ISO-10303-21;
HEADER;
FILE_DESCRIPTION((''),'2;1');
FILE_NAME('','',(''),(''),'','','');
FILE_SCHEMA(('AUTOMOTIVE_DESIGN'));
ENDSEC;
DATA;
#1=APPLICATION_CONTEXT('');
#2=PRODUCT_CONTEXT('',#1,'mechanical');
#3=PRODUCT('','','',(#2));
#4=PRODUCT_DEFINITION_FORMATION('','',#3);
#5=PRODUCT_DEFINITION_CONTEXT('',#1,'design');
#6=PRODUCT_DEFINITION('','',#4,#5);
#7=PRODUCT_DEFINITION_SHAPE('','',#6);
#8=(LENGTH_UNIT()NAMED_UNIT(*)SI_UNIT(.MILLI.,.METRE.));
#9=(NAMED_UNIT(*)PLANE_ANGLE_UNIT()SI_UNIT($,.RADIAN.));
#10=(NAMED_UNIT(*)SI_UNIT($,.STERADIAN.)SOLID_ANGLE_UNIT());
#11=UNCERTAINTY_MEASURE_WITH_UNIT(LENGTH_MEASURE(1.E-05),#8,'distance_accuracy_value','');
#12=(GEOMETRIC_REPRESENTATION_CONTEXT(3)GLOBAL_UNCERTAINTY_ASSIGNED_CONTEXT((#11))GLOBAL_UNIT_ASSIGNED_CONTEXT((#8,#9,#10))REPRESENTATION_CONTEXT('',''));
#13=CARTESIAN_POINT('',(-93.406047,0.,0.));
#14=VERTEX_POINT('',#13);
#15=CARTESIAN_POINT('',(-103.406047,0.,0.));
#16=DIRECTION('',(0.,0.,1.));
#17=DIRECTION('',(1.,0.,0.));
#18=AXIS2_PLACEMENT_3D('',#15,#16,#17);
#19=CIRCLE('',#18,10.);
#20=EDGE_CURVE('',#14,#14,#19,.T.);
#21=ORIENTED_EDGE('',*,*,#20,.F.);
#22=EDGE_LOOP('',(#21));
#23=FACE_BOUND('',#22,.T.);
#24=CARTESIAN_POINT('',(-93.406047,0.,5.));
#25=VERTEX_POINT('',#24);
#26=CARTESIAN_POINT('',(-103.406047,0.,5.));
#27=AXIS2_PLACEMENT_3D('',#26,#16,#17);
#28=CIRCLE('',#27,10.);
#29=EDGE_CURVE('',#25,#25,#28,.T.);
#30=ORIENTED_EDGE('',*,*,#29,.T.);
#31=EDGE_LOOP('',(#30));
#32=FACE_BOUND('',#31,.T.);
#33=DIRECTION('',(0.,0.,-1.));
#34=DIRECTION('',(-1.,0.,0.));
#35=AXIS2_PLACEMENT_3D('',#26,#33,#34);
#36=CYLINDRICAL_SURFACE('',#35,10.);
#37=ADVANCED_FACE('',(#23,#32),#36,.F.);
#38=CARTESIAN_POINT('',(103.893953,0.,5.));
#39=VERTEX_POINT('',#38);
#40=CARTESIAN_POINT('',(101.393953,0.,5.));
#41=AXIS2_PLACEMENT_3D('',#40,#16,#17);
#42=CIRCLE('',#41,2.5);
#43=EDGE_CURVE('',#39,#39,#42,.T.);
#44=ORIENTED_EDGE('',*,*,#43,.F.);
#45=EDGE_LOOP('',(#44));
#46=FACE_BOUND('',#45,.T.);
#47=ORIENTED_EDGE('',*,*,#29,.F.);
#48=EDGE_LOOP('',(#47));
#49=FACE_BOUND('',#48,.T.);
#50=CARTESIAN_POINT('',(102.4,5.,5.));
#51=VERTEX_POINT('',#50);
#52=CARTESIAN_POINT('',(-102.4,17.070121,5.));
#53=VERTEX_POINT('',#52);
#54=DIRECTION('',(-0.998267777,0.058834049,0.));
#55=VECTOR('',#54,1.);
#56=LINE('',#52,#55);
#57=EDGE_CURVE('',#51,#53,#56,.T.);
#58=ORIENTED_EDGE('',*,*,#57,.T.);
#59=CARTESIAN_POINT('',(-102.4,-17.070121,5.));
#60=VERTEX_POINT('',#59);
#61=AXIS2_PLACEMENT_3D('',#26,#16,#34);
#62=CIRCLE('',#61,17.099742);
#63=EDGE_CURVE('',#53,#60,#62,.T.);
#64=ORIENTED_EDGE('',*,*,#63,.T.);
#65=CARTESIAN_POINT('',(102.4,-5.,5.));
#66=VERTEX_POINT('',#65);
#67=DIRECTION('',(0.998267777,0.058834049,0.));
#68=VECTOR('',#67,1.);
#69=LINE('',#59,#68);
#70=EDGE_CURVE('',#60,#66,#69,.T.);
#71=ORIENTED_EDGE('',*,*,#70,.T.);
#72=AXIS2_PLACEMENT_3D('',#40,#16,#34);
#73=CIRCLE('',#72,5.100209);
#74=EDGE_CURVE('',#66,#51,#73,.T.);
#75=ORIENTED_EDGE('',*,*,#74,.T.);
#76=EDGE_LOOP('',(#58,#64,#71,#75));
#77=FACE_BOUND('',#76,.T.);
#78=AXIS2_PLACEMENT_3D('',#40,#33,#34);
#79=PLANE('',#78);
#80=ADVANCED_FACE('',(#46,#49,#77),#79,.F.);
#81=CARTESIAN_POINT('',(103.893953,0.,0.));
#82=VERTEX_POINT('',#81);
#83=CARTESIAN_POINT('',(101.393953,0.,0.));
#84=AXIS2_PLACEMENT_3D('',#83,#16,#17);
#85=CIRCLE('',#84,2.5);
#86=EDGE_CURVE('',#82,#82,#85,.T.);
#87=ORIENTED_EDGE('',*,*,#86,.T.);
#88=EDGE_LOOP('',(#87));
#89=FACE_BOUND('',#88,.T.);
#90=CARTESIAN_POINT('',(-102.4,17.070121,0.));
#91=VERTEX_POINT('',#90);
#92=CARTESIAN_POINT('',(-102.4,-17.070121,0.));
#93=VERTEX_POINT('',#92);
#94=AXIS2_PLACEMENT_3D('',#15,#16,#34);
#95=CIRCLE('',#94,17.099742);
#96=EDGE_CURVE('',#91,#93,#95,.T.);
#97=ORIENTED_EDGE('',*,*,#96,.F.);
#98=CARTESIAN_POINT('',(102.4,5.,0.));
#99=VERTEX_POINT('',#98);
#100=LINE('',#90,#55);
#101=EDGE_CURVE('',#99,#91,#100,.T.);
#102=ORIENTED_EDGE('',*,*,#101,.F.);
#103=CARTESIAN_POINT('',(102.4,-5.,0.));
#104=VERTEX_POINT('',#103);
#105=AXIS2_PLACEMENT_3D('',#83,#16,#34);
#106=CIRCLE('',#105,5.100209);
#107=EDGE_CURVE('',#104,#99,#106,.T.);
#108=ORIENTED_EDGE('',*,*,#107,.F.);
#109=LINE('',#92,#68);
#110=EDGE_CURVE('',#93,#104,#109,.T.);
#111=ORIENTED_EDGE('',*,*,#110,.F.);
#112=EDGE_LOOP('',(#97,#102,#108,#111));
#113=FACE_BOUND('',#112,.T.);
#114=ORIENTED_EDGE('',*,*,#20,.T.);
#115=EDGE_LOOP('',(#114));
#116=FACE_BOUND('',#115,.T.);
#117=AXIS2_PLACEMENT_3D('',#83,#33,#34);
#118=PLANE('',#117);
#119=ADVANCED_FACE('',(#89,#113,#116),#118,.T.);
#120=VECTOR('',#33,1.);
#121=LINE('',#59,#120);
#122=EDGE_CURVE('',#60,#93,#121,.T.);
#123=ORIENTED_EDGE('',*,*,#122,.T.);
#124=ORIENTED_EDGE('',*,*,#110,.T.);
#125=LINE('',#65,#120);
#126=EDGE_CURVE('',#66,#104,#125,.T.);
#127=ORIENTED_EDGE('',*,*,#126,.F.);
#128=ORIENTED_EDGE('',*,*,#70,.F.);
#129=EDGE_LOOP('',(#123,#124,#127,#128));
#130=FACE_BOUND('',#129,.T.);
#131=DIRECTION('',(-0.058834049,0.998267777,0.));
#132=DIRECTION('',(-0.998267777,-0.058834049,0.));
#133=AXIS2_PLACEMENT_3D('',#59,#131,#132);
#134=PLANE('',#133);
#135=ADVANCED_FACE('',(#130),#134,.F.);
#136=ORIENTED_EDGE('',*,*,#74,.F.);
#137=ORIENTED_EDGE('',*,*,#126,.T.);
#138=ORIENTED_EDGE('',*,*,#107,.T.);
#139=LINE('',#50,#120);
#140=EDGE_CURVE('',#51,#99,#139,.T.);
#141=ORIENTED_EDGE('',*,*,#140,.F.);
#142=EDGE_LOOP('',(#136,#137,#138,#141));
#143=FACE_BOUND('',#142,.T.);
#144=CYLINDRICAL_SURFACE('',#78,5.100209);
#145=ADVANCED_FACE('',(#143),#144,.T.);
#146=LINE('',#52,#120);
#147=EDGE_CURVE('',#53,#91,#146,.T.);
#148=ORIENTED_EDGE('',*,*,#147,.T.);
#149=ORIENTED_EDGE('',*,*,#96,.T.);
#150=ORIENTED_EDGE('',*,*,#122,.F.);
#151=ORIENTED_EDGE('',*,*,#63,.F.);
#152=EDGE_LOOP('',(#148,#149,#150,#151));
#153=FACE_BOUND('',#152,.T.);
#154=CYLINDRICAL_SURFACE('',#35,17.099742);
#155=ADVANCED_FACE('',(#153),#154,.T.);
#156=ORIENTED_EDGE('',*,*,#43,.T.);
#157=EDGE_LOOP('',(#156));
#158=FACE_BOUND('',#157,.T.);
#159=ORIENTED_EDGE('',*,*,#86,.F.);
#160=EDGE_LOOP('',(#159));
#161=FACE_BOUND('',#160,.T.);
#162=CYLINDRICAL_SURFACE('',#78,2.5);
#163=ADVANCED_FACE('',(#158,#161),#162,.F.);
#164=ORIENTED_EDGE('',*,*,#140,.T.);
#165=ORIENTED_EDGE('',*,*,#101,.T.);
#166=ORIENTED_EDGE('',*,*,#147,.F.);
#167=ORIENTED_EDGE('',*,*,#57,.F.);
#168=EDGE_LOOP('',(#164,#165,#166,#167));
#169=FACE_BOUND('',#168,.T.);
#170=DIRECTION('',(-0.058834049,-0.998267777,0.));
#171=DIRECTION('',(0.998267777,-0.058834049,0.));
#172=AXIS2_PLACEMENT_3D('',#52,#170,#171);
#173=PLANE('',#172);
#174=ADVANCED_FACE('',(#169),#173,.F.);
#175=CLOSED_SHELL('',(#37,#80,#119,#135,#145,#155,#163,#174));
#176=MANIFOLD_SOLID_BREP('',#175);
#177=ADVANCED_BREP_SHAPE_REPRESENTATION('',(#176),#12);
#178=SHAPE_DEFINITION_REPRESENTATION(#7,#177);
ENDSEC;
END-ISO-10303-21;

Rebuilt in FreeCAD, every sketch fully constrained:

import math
import FreeCAD as App
import Part
import Sketcher

V = App.Vector

doc = App.newDocument("Part")
body = doc.addObject("PartDesign::Body", "Body")

# Sketch on XY plane
sketch1 = doc.addObject("Sketcher::SketchObject", "Sketch")
body.addObject(sketch1)
sketch1.AttachmentSupport = (doc.XY_Plane, [""])
sketch1.MapMode = "FlatFace"
sketch1.addGeometry(Part.LineSegment(V(-102.4, -17.070121, 0), V(102.4, -5, 0)), False)
sketch1.addGeometry(Part.ArcOfCircle(Part.Circle(V(101.393953, 0, 0), V(0, 0, 1), 5.100209), math.radians(-78.623454), math.radians(78.623454)), False)
sketch1.addGeometry(Part.LineSegment(V(102.4, 5, 0), V(-102.4, 17.070121, 0)), False)
sketch1.addGeometry(Part.ArcOfCircle(Part.Circle(V(-103.406047, 0, 0), V(0, 0, 1), 17.099742), math.radians(86.62711), math.radians(273.37289)), False)
sketch1.addGeometry(Part.Circle(V(-103.406047, 0, 0), V(0, 0, 1), 10), False)
sketch1.addGeometry(Part.Circle(V(101.393953, 0, 0), V(0, 0, 1), 2.5), False)
sketch1.addConstraint(Sketcher.Constraint("Coincident", 0, 2, 1, 1))
sketch1.addConstraint(Sketcher.Constraint("Coincident", 1, 2, 2, 1))
sketch1.addConstraint(Sketcher.Constraint("Tangent", 2, 2, 3, 1))
sketch1.addConstraint(Sketcher.Constraint("Tangent", 3, 2, 0, 1))
sketch1.addConstraint(Sketcher.Constraint("Coincident", 4, 3, 3, 3))
sketch1.addConstraint(Sketcher.Constraint("Coincident", 5, 3, 1, 3))
sketch1.addConstraint(Sketcher.Constraint("Symmetric", 0, 2, 1, 2, -1))
sketch1.addConstraint(Sketcher.Constraint("PointOnObject", 3, 3, -1))
sketch1.addConstraint(Sketcher.Constraint("Diameter", 4, 20.0))
sketch1.addConstraint(Sketcher.Constraint("Diameter", 5, 5.0))
sketch1.addConstraint(Sketcher.Constraint("DistanceY", 0, 2, -1, 1, 5.0))
sketch1.addConstraint(Sketcher.Constraint("DistanceX", -1, 1, 0, 2, 102.4))
sketch1.addConstraint(Sketcher.Constraint("DistanceX", 2, 2, -1, 1, 102.4))
sketch1.addConstraint(Sketcher.Constraint("DistanceX", 3, 3, 1, 3, 204.8))
sketch1.addConstraint(Sketcher.Constraint("Radius", 1, 5.100209))
pad1 = doc.addObject("PartDesign::Pad", "Pad")
body.addObject(pad1)
pad1.Profile = sketch1
pad1.Length = 5

doc.recompute()
